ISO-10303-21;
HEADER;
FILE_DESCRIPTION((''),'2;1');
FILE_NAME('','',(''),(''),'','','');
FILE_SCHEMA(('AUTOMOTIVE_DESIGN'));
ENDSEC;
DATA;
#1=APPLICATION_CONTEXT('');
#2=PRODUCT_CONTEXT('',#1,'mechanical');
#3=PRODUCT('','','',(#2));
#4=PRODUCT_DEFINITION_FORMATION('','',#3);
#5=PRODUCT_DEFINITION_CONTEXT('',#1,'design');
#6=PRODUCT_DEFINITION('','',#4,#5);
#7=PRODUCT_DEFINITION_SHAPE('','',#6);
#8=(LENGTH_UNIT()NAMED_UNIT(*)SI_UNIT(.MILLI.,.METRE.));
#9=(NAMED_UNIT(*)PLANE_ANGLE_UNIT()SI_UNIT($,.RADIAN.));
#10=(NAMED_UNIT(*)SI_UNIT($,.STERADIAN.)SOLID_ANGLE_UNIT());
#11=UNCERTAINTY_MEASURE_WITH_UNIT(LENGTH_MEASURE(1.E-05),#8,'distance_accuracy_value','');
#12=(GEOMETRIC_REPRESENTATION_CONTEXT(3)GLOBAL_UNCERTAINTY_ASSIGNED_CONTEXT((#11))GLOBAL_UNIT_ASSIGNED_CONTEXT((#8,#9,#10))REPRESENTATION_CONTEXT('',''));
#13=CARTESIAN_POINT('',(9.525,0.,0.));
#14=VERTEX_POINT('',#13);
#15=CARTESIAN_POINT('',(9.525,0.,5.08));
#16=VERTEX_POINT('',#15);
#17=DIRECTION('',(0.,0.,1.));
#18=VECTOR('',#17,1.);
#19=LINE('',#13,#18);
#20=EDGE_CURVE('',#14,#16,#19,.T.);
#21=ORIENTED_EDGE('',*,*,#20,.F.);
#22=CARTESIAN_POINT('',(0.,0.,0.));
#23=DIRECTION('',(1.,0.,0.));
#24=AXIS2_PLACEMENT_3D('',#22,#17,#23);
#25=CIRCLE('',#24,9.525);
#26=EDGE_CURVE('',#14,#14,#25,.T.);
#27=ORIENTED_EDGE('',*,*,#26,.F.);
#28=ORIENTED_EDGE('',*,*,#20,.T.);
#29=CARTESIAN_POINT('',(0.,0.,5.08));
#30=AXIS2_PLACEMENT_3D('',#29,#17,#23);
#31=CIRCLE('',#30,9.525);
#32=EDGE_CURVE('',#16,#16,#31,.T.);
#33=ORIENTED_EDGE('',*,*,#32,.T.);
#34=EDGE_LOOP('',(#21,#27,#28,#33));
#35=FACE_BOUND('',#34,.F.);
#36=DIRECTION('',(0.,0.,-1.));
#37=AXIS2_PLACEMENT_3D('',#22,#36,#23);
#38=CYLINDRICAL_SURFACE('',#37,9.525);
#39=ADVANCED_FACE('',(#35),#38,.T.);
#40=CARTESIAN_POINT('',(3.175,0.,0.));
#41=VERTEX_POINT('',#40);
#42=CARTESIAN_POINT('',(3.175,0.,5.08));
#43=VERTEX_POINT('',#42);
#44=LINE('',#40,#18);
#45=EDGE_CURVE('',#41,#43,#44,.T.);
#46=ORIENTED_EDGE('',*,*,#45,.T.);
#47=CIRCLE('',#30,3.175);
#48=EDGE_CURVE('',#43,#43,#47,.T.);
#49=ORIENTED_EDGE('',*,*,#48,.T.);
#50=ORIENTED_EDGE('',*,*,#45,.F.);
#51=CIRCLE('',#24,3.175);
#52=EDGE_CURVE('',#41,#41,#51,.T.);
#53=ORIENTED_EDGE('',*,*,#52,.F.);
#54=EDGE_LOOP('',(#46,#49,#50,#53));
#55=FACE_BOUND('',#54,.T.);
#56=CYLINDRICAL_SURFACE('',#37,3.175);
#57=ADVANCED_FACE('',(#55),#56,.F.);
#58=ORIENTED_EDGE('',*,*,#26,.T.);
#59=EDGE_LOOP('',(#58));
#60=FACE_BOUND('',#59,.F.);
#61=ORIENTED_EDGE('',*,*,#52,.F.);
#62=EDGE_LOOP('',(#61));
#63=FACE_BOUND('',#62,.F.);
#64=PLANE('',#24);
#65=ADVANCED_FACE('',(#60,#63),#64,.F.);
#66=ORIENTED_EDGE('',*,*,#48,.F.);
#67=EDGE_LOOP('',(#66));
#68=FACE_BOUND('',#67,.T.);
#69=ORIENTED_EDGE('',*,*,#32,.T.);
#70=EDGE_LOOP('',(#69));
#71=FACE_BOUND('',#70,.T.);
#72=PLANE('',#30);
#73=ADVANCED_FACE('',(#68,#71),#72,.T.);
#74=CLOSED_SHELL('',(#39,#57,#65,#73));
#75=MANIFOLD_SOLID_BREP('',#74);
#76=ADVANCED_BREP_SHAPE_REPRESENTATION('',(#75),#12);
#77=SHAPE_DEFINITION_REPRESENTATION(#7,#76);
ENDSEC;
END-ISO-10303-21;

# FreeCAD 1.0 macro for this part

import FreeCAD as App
import Part
import Sketcher

V = App.Vector
Q = App.Units.Quantity

doc = App.newDocument("Part")
body = doc.addObject("PartDesign::Body", "Body")

# Sketch on XY plane
sketch1 = doc.addObject("Sketcher::SketchObject", "Sketch")
body.addObject(sketch1)
sketch1.AttachmentSupport = (doc.XY_Plane, [""])
sketch1.MapMode = "FlatFace"
sketch1.addGeometry(Part.Circle(V(0, 0, 0), V(0, 0, 1), 9.525), False)
sketch1.addGeometry(Part.Circle(V(0, 0, 0), V(0, 0, 1), 3.175), False)
sketch1.addConstraint(Sketcher.Constraint("Coincident", 0, 3, -1, 1))
sketch1.addConstraint(Sketcher.Constraint("Coincident", 1, 3, -1, 1))
sketch1.addConstraint(Sketcher.Constraint("Diameter", 0, Q("0.75 in")))
sketch1.addConstraint(Sketcher.Constraint("Diameter", 1, Q("0.25 in")))
pad1 = doc.addObject("PartDesign::Pad", "Pad")
body.addObject(pad1)
pad1.Profile = sketch1
pad1.Length = Q("0.2 in")

doc.recompute()
